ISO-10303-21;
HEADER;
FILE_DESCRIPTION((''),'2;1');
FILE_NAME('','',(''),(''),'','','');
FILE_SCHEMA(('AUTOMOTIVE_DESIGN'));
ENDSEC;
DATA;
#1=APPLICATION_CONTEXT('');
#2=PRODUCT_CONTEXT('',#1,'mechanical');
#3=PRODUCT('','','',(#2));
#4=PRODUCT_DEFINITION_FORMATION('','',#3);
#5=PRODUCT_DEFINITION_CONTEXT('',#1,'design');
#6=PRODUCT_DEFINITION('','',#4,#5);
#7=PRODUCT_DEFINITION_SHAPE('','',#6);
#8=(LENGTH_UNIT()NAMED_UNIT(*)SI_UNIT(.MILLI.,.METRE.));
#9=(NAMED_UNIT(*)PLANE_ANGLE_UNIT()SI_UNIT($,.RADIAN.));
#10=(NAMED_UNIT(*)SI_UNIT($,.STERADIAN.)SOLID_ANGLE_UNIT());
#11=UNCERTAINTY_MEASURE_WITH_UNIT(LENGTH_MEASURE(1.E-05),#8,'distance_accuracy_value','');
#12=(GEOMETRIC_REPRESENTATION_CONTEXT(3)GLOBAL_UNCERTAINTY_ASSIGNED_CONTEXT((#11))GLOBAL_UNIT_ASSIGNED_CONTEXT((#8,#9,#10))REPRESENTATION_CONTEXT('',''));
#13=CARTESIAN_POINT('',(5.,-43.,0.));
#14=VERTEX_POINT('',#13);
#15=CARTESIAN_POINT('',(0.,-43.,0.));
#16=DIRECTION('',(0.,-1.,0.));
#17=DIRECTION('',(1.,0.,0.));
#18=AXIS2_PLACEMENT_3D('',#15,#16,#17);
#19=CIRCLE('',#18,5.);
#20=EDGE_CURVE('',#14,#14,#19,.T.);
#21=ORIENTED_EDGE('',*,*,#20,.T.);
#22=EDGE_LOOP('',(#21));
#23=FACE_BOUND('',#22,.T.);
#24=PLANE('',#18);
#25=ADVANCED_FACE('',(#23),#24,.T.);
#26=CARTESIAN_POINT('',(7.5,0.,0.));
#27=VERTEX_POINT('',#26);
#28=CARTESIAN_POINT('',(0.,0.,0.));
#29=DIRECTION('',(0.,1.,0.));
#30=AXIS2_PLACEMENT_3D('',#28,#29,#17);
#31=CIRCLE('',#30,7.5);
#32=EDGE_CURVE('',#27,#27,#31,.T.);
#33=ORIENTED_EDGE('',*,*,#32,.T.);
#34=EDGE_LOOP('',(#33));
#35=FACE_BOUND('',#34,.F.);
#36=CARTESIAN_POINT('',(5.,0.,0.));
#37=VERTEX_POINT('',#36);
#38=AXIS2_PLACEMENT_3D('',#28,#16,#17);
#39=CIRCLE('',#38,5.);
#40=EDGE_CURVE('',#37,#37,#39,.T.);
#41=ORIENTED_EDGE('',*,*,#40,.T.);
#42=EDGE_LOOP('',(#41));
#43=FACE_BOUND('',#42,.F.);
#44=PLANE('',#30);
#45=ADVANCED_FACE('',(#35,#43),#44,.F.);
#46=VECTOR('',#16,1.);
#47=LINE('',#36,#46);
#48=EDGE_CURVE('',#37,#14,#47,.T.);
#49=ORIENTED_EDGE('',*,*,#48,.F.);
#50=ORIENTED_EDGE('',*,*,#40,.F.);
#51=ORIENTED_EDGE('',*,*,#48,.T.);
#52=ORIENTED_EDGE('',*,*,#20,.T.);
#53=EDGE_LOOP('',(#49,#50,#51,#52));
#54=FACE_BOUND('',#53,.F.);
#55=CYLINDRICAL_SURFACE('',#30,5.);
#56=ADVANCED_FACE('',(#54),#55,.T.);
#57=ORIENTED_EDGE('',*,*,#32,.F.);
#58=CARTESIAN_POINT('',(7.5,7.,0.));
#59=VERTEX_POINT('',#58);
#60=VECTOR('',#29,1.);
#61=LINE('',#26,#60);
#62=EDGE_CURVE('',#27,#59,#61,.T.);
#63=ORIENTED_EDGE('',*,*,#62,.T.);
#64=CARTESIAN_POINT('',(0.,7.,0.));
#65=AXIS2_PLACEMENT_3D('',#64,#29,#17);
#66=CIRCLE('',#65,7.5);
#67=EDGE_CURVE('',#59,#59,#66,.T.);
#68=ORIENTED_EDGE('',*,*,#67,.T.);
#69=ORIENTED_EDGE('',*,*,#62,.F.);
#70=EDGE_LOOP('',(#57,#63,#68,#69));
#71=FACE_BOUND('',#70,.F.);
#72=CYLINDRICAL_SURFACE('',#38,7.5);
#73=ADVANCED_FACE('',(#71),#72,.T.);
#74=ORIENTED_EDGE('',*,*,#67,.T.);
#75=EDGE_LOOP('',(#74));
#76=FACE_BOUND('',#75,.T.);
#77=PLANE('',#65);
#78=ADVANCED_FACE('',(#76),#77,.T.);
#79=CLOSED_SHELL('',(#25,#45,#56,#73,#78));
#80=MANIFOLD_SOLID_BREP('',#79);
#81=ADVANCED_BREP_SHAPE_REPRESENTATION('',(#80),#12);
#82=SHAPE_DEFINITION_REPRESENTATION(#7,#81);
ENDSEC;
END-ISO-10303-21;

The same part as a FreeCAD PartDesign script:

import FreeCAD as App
import Part
import Sketcher

doc = App.newDocument("Part")
params = doc.addObject("Spreadsheet::Sheet", "Params")
for row, (alias, value) in enumerate([
    ("sketch1_diameter", "15 mm"),
    ("pad1_length", "7 mm"),
    ("sketch2_diameter", "10 mm"),
    ("pad2_length", "43 mm"),
], start=1):
    params.set(f"A{row}", alias)
    params.set(f"B{row}", "=" + value)
    params.setAlias(f"B{row}", alias)

body = doc.addObject("PartDesign::Body", "Body")

sketch1 = body.newObject("Sketcher::SketchObject", "Sketch")
sketch1.AttachmentSupport = (doc.getObject("XZ_Plane"), [""])
sketch1.MapMode = "FlatFace"
sketch1.addGeometry(Part.Circle(App.Vector(0, 0, 0), App.Vector(0, 0, 1), 8), False)
sketch1.addConstraint([
    Sketcher.Constraint("Coincident", 0, 3, -1, 1),
    Sketcher.Constraint("Diameter", 0, 15.0),
])
sketch1.setExpression("Constraints[1]", "Params.sketch1_diameter")
pad1 = body.newObject("PartDesign::Pad", "Pad")
pad1.Profile = sketch1
pad1.setExpression("Length", "Params.pad1_length")
pad1.Reversed = True

sketch2 = body.newObject("Sketcher::SketchObject", "Sketch001")
sketch2.AttachmentSupport = (doc.getObject("XZ_Plane"), [""])
sketch2.MapMode = "FlatFace"
sketch2.addGeometry(Part.Circle(App.Vector(0, 0, 0), App.Vector(0, 0, 1), 5), False)
sketch2.addConstraint([
    Sketcher.Constraint("Coincident", 0, 3, -1, 1),
    Sketcher.Constraint("Diameter", 0, 10.0),
])
sketch2.setExpression("Constraints[1]", "Params.sketch2_diameter")
pad2 = body.newObject("PartDesign::Pad", "Pad001")
pad2.Profile = sketch2
pad2.setExpression("Length", "Params.pad2_length")

doc.recompute()
